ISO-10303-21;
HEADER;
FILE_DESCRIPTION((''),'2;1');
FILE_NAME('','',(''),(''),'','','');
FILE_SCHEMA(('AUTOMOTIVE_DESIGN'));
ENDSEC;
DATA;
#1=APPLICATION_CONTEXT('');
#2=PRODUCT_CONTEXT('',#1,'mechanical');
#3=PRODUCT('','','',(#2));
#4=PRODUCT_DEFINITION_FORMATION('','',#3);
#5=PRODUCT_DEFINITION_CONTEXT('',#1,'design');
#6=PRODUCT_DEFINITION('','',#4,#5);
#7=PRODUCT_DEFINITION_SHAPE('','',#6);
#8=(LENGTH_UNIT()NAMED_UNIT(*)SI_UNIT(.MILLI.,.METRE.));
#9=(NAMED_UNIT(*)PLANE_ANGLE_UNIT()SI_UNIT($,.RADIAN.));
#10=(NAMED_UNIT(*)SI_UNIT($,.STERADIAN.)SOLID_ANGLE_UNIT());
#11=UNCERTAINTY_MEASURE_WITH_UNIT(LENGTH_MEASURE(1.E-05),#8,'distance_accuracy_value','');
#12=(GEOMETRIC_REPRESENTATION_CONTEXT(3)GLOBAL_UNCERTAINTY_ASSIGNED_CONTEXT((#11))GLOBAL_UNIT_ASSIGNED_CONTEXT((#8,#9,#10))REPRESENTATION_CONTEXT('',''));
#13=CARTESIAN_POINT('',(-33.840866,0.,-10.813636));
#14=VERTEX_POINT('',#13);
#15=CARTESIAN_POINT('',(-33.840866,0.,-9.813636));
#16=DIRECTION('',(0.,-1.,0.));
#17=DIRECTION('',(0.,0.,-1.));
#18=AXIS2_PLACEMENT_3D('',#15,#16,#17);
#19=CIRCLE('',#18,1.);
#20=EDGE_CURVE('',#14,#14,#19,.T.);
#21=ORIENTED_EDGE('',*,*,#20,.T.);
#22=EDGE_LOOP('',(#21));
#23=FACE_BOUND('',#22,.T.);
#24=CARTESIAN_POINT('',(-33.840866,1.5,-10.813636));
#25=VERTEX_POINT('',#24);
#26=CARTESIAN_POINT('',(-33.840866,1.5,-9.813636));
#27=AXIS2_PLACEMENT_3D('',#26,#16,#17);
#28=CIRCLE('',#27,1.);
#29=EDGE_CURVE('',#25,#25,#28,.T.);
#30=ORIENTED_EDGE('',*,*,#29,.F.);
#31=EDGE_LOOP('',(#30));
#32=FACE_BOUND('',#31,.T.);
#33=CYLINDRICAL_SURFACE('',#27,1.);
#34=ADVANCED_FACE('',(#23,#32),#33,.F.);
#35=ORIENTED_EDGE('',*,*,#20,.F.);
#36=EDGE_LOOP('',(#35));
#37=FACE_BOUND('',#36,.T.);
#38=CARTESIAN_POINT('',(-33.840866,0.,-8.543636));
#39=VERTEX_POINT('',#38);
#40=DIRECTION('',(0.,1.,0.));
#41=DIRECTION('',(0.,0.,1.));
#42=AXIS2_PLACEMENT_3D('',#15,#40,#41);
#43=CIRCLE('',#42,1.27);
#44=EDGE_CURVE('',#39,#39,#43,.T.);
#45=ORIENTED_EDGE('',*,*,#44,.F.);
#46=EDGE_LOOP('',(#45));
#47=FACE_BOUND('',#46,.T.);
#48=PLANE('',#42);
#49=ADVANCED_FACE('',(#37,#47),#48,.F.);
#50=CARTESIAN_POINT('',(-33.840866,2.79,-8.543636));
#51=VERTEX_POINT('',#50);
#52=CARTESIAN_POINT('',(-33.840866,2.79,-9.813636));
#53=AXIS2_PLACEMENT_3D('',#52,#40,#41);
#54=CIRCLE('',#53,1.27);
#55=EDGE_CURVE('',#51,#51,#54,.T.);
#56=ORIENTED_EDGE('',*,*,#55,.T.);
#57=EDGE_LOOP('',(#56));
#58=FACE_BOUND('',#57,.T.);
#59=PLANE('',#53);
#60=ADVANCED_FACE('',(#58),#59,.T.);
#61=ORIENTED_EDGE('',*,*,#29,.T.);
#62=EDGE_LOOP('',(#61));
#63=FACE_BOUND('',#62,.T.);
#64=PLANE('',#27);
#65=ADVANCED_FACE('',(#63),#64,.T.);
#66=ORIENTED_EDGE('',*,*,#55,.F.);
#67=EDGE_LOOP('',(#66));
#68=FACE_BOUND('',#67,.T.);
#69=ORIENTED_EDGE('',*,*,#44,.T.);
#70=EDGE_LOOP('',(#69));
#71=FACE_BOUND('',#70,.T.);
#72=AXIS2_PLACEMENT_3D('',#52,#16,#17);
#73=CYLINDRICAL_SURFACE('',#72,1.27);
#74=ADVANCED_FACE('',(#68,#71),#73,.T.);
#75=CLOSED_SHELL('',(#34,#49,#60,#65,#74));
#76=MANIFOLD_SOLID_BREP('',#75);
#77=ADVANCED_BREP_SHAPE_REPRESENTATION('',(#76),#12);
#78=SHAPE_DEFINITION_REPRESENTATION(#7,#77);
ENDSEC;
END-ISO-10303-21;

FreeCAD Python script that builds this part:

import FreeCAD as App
import Part
import Sketcher
from FreeCAD import Vector

doc = App.newDocument("Part")
body = doc.addObject("PartDesign::Body", "Body")

# Sketch on XZ plane
sketch1 = body.newObject("Sketcher::SketchObject", "Sketch")
sketch1.AttachmentSupport = (doc.getObject("XZ_Plane"), [""])
sketch1.MapMode = "FlatFace"
sketch1.addGeometry(Part.Circle(Vector(-33.840866, -9.813636, 0), Vector(0, 0, 1), 1.27), False)
sketch1.addConstraint(Sketcher.Constraint("Diameter", 0, 2.54))
sketch1.addConstraint(Sketcher.Constraint("DistanceX", 0, 3, -1, 1, 33.840866))
sketch1.addConstraint(Sketcher.Constraint("DistanceY", 0, 3, -1, 1, 9.813636))
pad1 = body.newObject("PartDesign::Pad", "Pad")
pad1.Profile = sketch1
pad1.Length = 2.79
pad1.Reversed = True

# Sketch on XZ plane
sketch2 = body.newObject("Sketcher::SketchObject", "Sketch001")
sketch2.AttachmentSupport = (doc.getObject("XZ_Plane"), [""])
sketch2.MapMode = "FlatFace"
sketch2.addGeometry(Part.Circle(Vector(-33.840866, -9.813636, 0), Vector(0, 0, 1), 1), False)
sketch2.addConstraint(Sketcher.Constraint("Diameter", 0, 2.0))
sketch2.addConstraint(Sketcher.Constraint("DistanceX", 0, 3, -1, 1, 33.840866))
sketch2.addConstraint(Sketcher.Constraint("DistanceY", 0, 3, -1, 1, 9.813636))
pocket1 = body.newObject("PartDesign::Pocket", "Pocket")
pocket1.Profile = sketch2
pocket1.Length = 1.5

doc.recompute()
